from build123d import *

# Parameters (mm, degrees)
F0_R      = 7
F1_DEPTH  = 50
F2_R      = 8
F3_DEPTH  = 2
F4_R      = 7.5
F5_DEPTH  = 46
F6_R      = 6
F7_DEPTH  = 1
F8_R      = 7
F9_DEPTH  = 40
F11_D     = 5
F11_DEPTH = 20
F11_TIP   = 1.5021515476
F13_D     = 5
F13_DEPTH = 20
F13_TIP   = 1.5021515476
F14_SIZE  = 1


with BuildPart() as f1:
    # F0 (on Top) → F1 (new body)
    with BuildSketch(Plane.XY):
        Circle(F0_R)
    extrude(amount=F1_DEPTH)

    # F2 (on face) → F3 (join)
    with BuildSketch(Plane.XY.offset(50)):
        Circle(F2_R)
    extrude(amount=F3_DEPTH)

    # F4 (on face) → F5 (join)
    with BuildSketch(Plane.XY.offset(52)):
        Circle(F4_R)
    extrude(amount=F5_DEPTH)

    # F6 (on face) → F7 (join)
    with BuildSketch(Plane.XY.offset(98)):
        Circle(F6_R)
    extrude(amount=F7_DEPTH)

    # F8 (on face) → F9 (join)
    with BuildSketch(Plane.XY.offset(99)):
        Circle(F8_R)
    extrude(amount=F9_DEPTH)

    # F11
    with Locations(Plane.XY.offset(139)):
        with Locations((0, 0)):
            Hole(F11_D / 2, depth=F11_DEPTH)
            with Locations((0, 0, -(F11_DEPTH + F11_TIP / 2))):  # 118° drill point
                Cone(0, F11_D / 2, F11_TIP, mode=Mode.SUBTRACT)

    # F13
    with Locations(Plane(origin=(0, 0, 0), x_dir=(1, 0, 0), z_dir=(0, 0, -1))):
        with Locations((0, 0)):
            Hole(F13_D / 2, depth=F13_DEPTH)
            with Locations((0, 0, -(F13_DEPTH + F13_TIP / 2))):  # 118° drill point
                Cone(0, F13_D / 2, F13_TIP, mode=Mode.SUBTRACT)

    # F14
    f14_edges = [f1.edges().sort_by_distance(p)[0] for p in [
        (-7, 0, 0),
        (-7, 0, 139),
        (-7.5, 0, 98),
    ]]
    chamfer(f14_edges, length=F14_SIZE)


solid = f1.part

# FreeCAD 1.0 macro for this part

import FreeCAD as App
import Part
import Sketcher


def edges_at(feature, points):
    """Names of the edges that pass closest to the given points."""
    edges = feature.Shape.Edges
    near = lambda p: min(range(len(edges)), key=lambda i: edges[i].distToShape(Part.Vertex(*p))[0])
    return sorted({f"Edge{near(p) + 1}" for p in points})

doc = App.newDocument("Part")
params = doc.addObject("Spreadsheet::Sheet", "Params")
for row, (alias, value) in enumerate([
    ("sketch1_diameter", "14 mm"),
    ("pad1_length", "50 mm"),
    ("sketch2_diameter", "16 mm"),
    ("pad2_length", "2 mm"),
    ("sketch3_diameter", "15 mm"),
    ("pad3_length", "46 mm"),
    ("sketch4_diameter", "12 mm"),
    ("pad4_length", "1 mm"),
    ("sketch5_diameter", "14 mm"),
    ("pad5_length", "40 mm"),
    ("sketch6_diameter", "5 mm"),
    ("hole_diameter", "5 mm"),
    ("hole_depth", "20 mm"),
    ("sketch7_diameter", "5 mm"),
    ("hole2_diameter", "5 mm"),
    ("hole2_depth", "20 mm"),
    ("chamfer_size", "1 mm"),
], start=1):
    params.set(f"A{row}", alias)
    params.set(f"B{row}", "=" + value)
    params.setAlias(f"B{row}", alias)

body = doc.addObject("PartDesign::Body", "Body")

sketch1 = body.newObject("Sketcher::SketchObject", "Sketch")
sketch1.AttachmentSupport = (doc.getObject("XY_Plane"), [""])
sketch1.MapMode = "FlatFace"
sketch1.addGeometry(Part.Circle(App.Vector(0, 0, 0), App.Vector(0, 0, 1), 7), False)
sketch1.addConstraint(Sketcher.Constraint("Coincident", 0, 3, -1, 1))
sketch1.addConstraint(Sketcher.Constraint("Diameter", 0, 14.0))
sketch1.setExpression("Constraints[1]", "Params.sketch1_diameter")
pad1 = body.newObject("PartDesign::Pad", "Pad")
pad1.Profile = sketch1
pad1.setExpression("Length", "Params.pad1_length")

sketch2 = body.newObject("Sketcher::SketchObject", "Sketch001")
sketch2.AttachmentSupport = (doc.getObject("XY_Plane"), [""])
sketch2.MapMode = "FlatFace"
sketch2.AttachmentOffset = App.Placement(App.Vector(0, 0, 50), App.Rotation())
sketch2.addGeometry(Part.Circle(App.Vector(0, 0, 0), App.Vector(0, 0, 1), 8), False)
sketch2.addConstraint(Sketcher.Constraint("Coincident", 0, 3, -1, 1))
sketch2.addConstraint(Sketcher.Constraint("Diameter", 0, 16.0))
sketch2.setExpression("Constraints[1]", "Params.sketch2_diameter")
pad2 = body.newObject("PartDesign::Pad", "Pad001")
pad2.Profile = sketch2
pad2.setExpression("Length", "Params.pad2_length")

sketch3 = body.newObject("Sketcher::SketchObject", "Sketch002")
sketch3.AttachmentSupport = (doc.getObject("XY_Plane"), [""])
sketch3.MapMode = "FlatFace"
sketch3.AttachmentOffset = App.Placement(App.Vector(0, 0, 52), App.Rotation())
sketch3.addGeometry(Part.Circle(App.Vector(0, 0, 0), App.Vector(0, 0, 1), 7.5), False)
sketch3.addConstraint(Sketcher.Constraint("Coincident", 0, 3, -1, 1))
sketch3.addConstraint(Sketcher.Constraint("Diameter", 0, 15.0))
sketch3.setExpression("Constraints[1]", "Params.sketch3_diameter")
pad3 = body.newObject("PartDesign::Pad", "Pad002")
pad3.Profile = sketch3
pad3.setExpression("Length", "Params.pad3_length")

sketch4 = body.newObject("Sketcher::SketchObject", "Sketch003")
sketch4.AttachmentSupport = (doc.getObject("XY_Plane"), [""])
sketch4.MapMode = "FlatFace"
sketch4.AttachmentOffset = App.Placement(App.Vector(0, 0, 98), App.Rotation())
sketch4.addGeometry(Part.Circle(App.Vector(0, 0, 0), App.Vector(0, 0, 1), 6), False)
sketch4.addConstraint(Sketcher.Constraint("Coincident", 0, 3, -1, 1))
sketch4.addConstraint(Sketcher.Constraint("Diameter", 0, 12.0))
sketch4.setExpression("Constraints[1]", "Params.sketch4_diameter")
pad4 = body.newObject("PartDesign::Pad", "Pad003")
pad4.Profile = sketch4
pad4.setExpression("Length", "Params.pad4_length")

sketch5 = body.newObject("Sketcher::SketchObject", "Sketch004")
sketch5.AttachmentSupport = (doc.getObject("XY_Plane"), [""])
sketch5.MapMode = "FlatFace"
sketch5.AttachmentOffset = App.Placement(App.Vector(0, 0, 99), App.Rotation())
sketch5.addGeometry(Part.Circle(App.Vector(0, 0, 0), App.Vector(0, 0, 1), 7), False)
sketch5.addConstraint(Sketcher.Constraint("Coincident", 0, 3, -1, 1))
sketch5.addConstraint(Sketcher.Constraint("Diameter", 0, 14.0))
sketch5.setExpression("Constraints[1]", "Params.sketch5_diameter")
pad5 = body.newObject("PartDesign::Pad", "Pad004")
pad5.Profile = sketch5
pad5.setExpression("Length", "Params.pad5_length")

sketch6 = body.newObject("Sketcher::SketchObject", "Sketch005")
sketch6.AttachmentSupport = (doc.getObject("XY_Plane"), [""])
sketch6.MapMode = "FlatFace"
sketch6.AttachmentOffset = App.Placement(App.Vector(0, 0, 139), App.Rotation())
sketch6.addGeometry(Part.Circle(App.Vector(0, 0, 0), App.Vector(0, 0, 1), 2.5), False)
sketch6.addConstraint(Sketcher.Constraint("Coincident", 0, 3, -1, 1))
sketch6.addConstraint(Sketcher.Constraint("Diameter", 0, 5.0))
sketch6.setExpression("Constraints[1]", "Params.sketch6_diameter")
doc.recompute()
hole = body.newObject("PartDesign::Hole", "Hole")
hole.Profile = sketch6
hole.ThreadType = "None"
hole.setExpression("Diameter", "Params.hole_diameter")
hole.DepthType = "Dimension"
hole.setExpression("Depth", "Params.hole_depth")
hole.DrillPoint = "Angled"
hole.DrillPointAngle = 118

sketch7 = body.newObject("Sketcher::SketchObject", "Sketch006")
sketch7.AttachmentSupport = (doc.getObject("XY_Plane"), [""])
sketch7.MapMode = "FlatFace"
sketch7.addGeometry(Part.Circle(App.Vector(0, 0, 0), App.Vector(0, 0, 1), 2.5), False)
sketch7.addConstraint(Sketcher.Constraint("Coincident", 0, 3, -1, 1))
sketch7.addConstraint(Sketcher.Constraint("Diameter", 0, 5.0))
sketch7.setExpression("Constraints[1]", "Params.sketch7_diameter")
doc.recompute()
hole2 = body.newObject("PartDesign::Hole", "Hole001")
hole2.Profile = sketch7
hole2.ThreadType = "None"
hole2.setExpression("Diameter", "Params.hole2_diameter")
hole2.DepthType = "Dimension"
hole2.setExpression("Depth", "Params.hole2_depth")
hole2.DrillPoint = "Angled"
hole2.DrillPointAngle = 118
hole2.Reversed = True
doc.recompute()

chamfer = body.newObject("PartDesign::Chamfer", "Chamfer")
chamfer.Base = (hole2, edges_at(hole2, [(-7, 0, 0), (-7, 0, 139), (-7.5, 0, 98)]))
chamfer.setExpression("Size", "Params.chamfer_size")

doc.recompute()
